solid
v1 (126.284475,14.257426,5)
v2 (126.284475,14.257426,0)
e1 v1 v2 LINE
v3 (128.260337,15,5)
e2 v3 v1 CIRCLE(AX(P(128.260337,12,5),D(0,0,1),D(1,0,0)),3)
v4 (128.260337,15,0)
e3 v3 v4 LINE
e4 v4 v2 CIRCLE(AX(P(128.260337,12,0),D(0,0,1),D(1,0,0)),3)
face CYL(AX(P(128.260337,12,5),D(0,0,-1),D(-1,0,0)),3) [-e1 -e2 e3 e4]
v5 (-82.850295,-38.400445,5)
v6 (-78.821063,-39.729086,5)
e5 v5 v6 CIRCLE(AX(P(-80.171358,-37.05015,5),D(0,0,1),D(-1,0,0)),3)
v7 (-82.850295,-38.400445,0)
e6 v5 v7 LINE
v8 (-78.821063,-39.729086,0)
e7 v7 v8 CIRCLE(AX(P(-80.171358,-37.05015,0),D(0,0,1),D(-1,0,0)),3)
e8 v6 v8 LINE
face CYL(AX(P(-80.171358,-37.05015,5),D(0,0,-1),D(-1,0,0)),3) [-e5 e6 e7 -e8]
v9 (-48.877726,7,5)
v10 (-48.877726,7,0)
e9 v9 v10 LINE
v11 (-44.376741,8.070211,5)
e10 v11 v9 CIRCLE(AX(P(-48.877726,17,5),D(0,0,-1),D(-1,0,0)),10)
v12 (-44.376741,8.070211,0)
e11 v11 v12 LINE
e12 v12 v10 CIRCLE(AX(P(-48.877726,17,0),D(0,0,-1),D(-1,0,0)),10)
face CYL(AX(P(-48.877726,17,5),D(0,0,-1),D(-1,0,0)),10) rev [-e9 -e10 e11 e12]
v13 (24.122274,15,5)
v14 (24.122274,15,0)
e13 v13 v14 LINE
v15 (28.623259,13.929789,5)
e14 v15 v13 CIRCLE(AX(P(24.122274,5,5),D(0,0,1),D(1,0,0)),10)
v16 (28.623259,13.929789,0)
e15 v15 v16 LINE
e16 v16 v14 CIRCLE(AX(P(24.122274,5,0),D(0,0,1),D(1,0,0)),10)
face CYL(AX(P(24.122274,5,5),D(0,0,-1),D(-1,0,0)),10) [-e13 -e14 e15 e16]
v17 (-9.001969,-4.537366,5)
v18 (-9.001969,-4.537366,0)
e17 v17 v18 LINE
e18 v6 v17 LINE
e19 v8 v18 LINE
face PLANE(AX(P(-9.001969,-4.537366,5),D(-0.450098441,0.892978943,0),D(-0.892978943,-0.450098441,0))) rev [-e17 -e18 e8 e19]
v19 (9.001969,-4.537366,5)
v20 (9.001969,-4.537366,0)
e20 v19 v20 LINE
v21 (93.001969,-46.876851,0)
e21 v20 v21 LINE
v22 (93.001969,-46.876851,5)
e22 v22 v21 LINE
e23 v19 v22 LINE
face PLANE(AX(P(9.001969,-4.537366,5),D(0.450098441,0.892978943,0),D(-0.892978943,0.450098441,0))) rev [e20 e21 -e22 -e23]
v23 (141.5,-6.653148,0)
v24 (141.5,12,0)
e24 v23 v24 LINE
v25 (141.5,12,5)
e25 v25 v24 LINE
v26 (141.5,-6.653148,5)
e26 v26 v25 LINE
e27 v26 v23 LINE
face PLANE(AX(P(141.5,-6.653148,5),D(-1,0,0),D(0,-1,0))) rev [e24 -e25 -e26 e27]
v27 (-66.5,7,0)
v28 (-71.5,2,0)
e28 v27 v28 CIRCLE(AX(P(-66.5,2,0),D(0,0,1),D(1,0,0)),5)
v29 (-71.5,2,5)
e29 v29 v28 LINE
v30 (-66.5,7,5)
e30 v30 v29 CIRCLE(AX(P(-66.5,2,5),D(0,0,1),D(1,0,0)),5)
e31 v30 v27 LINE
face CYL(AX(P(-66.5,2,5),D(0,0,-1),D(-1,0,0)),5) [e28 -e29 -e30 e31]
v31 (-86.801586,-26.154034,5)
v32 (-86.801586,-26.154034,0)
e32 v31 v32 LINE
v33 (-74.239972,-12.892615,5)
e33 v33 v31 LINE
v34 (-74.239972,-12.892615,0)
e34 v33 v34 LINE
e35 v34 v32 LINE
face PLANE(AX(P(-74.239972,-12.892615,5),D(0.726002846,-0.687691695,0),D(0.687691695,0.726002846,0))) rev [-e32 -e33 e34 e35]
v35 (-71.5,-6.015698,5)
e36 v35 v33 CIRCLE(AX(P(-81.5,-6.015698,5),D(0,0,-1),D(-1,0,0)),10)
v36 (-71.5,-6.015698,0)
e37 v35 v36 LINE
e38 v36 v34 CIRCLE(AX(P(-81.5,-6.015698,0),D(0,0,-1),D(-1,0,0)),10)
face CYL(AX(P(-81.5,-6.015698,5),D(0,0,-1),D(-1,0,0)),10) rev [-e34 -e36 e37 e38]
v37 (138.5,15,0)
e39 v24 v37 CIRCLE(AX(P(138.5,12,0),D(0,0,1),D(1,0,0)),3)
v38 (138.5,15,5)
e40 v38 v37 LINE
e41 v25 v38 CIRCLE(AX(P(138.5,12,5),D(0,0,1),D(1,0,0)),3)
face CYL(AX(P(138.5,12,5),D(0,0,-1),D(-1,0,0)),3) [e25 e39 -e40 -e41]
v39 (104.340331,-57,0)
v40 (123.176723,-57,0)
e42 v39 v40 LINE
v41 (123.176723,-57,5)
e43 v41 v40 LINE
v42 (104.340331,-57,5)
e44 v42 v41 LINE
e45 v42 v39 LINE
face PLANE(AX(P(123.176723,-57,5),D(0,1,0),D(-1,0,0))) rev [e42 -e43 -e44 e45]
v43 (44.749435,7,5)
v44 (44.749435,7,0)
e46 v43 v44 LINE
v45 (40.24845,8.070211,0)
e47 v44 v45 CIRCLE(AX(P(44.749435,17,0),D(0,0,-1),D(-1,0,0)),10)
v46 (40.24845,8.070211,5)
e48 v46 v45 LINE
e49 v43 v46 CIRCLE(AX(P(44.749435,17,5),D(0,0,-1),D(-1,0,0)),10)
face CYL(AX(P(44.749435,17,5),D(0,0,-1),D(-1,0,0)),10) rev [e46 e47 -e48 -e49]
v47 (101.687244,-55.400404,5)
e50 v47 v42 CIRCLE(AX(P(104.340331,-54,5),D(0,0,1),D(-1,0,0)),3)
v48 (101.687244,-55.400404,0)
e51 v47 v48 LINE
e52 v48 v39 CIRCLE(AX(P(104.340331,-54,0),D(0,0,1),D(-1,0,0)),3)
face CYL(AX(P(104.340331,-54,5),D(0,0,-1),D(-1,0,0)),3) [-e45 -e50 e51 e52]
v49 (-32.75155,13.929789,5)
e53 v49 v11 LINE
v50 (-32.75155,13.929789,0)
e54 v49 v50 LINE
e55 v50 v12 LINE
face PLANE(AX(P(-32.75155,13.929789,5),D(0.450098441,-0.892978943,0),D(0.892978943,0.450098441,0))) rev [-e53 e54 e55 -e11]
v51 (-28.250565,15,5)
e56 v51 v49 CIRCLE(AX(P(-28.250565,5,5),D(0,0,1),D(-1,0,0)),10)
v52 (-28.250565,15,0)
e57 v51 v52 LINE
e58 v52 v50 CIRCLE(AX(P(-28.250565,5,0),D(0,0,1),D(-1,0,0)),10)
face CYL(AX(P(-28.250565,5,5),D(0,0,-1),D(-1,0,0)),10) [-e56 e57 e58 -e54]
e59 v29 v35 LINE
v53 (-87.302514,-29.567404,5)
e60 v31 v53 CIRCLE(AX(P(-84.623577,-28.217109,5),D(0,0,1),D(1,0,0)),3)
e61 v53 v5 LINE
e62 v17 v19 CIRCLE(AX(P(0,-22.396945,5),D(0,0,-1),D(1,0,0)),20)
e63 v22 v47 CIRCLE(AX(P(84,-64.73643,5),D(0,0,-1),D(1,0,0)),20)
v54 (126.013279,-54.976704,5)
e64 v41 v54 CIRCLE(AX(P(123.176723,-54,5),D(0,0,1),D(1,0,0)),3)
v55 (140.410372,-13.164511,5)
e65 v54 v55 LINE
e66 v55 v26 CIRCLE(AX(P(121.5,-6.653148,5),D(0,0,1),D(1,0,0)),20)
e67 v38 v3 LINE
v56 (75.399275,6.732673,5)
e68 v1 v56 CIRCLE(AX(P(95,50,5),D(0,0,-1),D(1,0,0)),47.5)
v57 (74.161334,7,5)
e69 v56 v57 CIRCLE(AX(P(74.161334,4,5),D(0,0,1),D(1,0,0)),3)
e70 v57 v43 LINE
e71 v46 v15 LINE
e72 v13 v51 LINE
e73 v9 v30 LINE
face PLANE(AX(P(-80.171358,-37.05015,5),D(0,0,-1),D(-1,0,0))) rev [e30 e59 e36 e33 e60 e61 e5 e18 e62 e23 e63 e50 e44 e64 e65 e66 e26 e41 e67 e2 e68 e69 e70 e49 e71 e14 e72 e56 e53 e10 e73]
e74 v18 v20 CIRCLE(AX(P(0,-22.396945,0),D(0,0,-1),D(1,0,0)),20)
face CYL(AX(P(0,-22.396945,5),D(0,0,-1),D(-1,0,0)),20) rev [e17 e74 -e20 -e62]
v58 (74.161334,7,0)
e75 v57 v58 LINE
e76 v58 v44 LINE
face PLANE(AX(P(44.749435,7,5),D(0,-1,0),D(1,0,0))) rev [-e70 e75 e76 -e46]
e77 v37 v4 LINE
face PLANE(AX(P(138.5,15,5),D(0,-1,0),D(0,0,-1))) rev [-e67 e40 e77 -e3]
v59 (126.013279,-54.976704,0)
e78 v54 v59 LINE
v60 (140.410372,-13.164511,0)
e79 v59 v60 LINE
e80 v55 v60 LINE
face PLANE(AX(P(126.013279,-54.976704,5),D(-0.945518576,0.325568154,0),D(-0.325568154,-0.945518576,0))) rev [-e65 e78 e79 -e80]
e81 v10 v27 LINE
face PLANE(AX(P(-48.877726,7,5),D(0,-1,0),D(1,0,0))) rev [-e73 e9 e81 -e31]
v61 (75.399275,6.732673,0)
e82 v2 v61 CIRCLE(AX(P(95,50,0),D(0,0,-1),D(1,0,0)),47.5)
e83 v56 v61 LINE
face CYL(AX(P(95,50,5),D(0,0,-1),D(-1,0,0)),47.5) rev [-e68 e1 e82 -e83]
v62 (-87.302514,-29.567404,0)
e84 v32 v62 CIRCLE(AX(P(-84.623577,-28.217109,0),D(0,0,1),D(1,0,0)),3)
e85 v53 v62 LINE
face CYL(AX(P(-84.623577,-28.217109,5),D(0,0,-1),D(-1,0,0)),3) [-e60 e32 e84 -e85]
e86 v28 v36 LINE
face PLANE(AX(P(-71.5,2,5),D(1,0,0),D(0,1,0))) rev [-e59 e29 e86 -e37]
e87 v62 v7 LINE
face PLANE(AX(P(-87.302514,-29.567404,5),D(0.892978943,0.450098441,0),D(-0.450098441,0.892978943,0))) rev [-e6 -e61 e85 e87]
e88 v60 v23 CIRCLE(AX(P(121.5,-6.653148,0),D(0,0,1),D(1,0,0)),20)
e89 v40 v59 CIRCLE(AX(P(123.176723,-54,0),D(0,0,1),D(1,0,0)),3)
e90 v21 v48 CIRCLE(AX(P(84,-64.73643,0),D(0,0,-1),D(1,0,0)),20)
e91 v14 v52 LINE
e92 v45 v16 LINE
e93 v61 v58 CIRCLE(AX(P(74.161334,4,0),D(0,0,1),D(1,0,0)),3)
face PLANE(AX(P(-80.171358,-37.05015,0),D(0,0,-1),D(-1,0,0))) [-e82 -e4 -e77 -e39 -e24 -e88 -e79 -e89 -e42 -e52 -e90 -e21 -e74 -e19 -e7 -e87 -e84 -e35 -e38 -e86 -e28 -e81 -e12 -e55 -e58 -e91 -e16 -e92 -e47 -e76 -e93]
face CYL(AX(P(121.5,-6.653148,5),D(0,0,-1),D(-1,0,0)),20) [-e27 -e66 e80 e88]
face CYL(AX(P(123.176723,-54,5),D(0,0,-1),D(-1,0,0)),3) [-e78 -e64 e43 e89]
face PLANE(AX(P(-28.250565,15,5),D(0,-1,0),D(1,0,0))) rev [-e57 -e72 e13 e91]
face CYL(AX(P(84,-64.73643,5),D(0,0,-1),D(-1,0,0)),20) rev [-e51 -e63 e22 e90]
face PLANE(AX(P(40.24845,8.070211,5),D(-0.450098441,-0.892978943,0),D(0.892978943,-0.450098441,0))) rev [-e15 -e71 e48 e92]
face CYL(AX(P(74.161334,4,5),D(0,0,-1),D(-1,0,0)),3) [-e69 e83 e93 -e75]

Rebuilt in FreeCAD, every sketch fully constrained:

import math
import FreeCAD as App
import Part
import Sketcher
from FreeCAD import Vector
Q = App.Units.Quantity

doc = App.newDocument("Part")
body = doc.addObject("PartDesign::Body", "Body")

sketch1 = doc.addObject("Sketcher::SketchObject", "Sketch")
body.addObject(sketch1)
sketch1.AttachmentSupport = (doc.XY_Plane, [""])
sketch1.MapMode = "FlatFace"
sketch1.addGeometry([
    Part.LineSegment(Vector(9, -4.5, 0), Vector(93, -46.9, 0)),
    Part.ArcOfCircle(Part.Circle(Vector(84, -64.7, 0), Vector(0, 0, 1), 20), math.radians(28), math.radians(63)),
    Part.ArcOfCircle(Part.Circle(Vector(104.3, -54, 0), Vector(0, 0, 1), 3), math.radians(-152), math.radians(-90)),
    Part.LineSegment(Vector(104.3, -57, 0), Vector(123.2, -57, 0)),
    Part.ArcOfCircle(Part.Circle(Vector(123.2, -54, 0), Vector(0, 0, 1), 3), math.radians(-90), math.radians(-19)),
    Part.LineSegment(Vector(126, -55, 0), Vector(140.4, -13.2, 0)),
    Part.ArcOfCircle(Part.Circle(Vector(121.5, -6.7, 0), Vector(0, 0, 1), 20), math.radians(-19), math.radians(0)),
    Part.LineSegment(Vector(141.5, -6.7, 0), Vector(141.5, 12, 0)),
    Part.ArcOfCircle(Part.Circle(Vector(138.5, 12, 0), Vector(0, 0, 1), 3), math.radians(0), math.radians(90)),
    Part.LineSegment(Vector(138.5, 15, 0), Vector(128.3, 15, 0)),
    Part.ArcOfCircle(Part.Circle(Vector(128.3, 12, 0), Vector(0, 0, 1), 3), math.radians(90), math.radians(131)),
    Part.ArcOfCircle(Part.Circle(Vector(95, 50, 0), Vector(0, 0, 1), 47.5), math.radians(-114), math.radians(-49)),
    Part.ArcOfCircle(Part.Circle(Vector(74.2, 4, 0), Vector(0, 0, 1), 3), math.radians(66), math.radians(90)),
    Part.LineSegment(Vector(74.2, 7, 0), Vector(44.7, 7, 0)),
    Part.ArcOfCircle(Part.Circle(Vector(44.7, 17, 0), Vector(0, 0, 1), 10), math.radians(-117), math.radians(-90)),
    Part.LineSegment(Vector(40.2, 8.1, 0), Vector(28.6, 13.9, 0)),
    Part.ArcOfCircle(Part.Circle(Vector(24.1, 5, 0), Vector(0, 0, 1), 10), math.radians(63), math.radians(90)),
    Part.LineSegment(Vector(24.1, 15, 0), Vector(-28.3, 15, 0)),
    Part.ArcOfCircle(Part.Circle(Vector(-28.3, 5, 0), Vector(0, 0, 1), 10), math.radians(90), math.radians(117)),
    Part.LineSegment(Vector(-32.8, 13.9, 0), Vector(-44.4, 8.1, 0)),
    Part.ArcOfCircle(Part.Circle(Vector(-48.9, 17, 0), Vector(0, 0, 1), 10), math.radians(-90), math.radians(-63)),
    Part.LineSegment(Vector(-48.9, 7, 0), Vector(-66.5, 7, 0)),
    Part.ArcOfCircle(Part.Circle(Vector(-66.5, 2, 0), Vector(0, 0, 1), 5), math.radians(90), math.radians(180)),
    Part.LineSegment(Vector(-71.5, 2, 0), Vector(-71.5, -6, 0)),
    Part.ArcOfCircle(Part.Circle(Vector(-81.5, -6, 0), Vector(0, 0, 1), 10), math.radians(-43), math.radians(0)),
    Part.LineSegment(Vector(-74.2, -12.9, 0), Vector(-86.8, -26.2, 0)),
    Part.ArcOfCircle(Part.Circle(Vector(-84.6, -28.2, 0), Vector(0, 0, 1), 3), math.radians(137), math.radians(207)),
    Part.LineSegment(Vector(-87.3, -29.6, 0), Vector(-82.9, -38.4, 0)),
    Part.ArcOfCircle(Part.Circle(Vector(-80.2, -37.1, 0), Vector(0, 0, 1), 3), math.radians(-153), math.radians(-63)),
    Part.LineSegment(Vector(-78.8, -39.7, 0), Vector(-9, -4.5, 0)),
    Part.ArcOfCircle(Part.Circle(Vector(0, -22.4, 0), Vector(0, 0, 1), 20), math.radians(63), math.radians(117)),
], False)
sketch1.addConstraint([
    Sketcher.Constraint("Tangent", 0, 2, 1, 2),
    Sketcher.Constraint("Tangent", 1, 1, 2, 1),
    Sketcher.Constraint("Tangent", 2, 2, 3, 1),
    Sketcher.Constraint("Tangent", 3, 2, 4, 1),
    Sketcher.Constraint("Tangent", 4, 2, 5, 1),
    Sketcher.Constraint("Tangent", 5, 2, 6, 1),
    Sketcher.Constraint("Tangent", 6, 2, 7, 1),
    Sketcher.Constraint("Tangent", 7, 2, 8, 1),
    Sketcher.Constraint("Tangent", 8, 2, 9, 1),
    Sketcher.Constraint("Tangent", 9, 2, 10, 1),
    Sketcher.Constraint("Tangent", 10, 2, 11, 2),
    Sketcher.Constraint("Tangent", 11, 1, 12, 1),
    Sketcher.Constraint("Tangent", 12, 2, 13, 1),
    Sketcher.Constraint("Tangent", 13, 2, 14, 2),
    Sketcher.Constraint("Tangent", 14, 1, 15, 1),
    Sketcher.Constraint("Tangent", 15, 2, 16, 1),
    Sketcher.Constraint("Tangent", 16, 2, 17, 1),
    Sketcher.Constraint("Tangent", 17, 2, 18, 1),
    Sketcher.Constraint("Tangent", 18, 2, 19, 1),
    Sketcher.Constraint("Tangent", 19, 2, 20, 2),
    Sketcher.Constraint("Tangent", 20, 1, 21, 1),
    Sketcher.Constraint("Tangent", 21, 2, 22, 1),
    Sketcher.Constraint("Tangent", 22, 2, 23, 1),
    Sketcher.Constraint("Tangent", 23, 2, 24, 2),
    Sketcher.Constraint("Tangent", 24, 1, 25, 1),
    Sketcher.Constraint("Tangent", 25, 2, 26, 1),
    Sketcher.Constraint("Tangent", 26, 2, 27, 1),
    Sketcher.Constraint("Tangent", 27, 2, 28, 1),
    Sketcher.Constraint("Tangent", 28, 2, 29, 1),
    Sketcher.Constraint("Tangent", 29, 2, 30, 2),
    Sketcher.Constraint("Tangent", 30, 1, 0, 1),
    Sketcher.Constraint("Horizontal", 3),
    Sketcher.Constraint("Vertical", 7),
    Sketcher.Constraint("Horizontal", 9),
    Sketcher.Constraint("Horizontal", 13),
    Sketcher.Constraint("Horizontal", 17),
    Sketcher.Constraint("Horizontal", 21),
    Sketcher.Constraint("Vertical", 23),
    Sketcher.Constraint("Equal", 2, 4),
    Sketcher.Constraint("Equal", 1, 6),
    Sketcher.Constraint("Equal", 4, 8),
    Sketcher.Constraint("Equal", 8, 10),
    Sketcher.Constraint("Equal", 10, 12),
    Sketcher.Constraint("Equal", 14, 16),
    Sketcher.Constraint("Equal", 16, 18),
    Sketcher.Constraint("Equal", 18, 20),
    Sketcher.Constraint("Equal", 20, 24),
    Sketcher.Constraint("Equal", 12, 26),
    Sketcher.Constraint("Equal", 26, 28),
    Sketcher.Constraint("Equal", 6, 30),
    Sketcher.Constraint("Symmetric", 29, 2, 30, 1, -2),
    Sketcher.Constraint("Parallel", 0, 15),
    Sketcher.Constraint("Perpendicular", 19, 27),
    Sketcher.Constraint("Perpendicular", 27, 29),
    Sketcher.Constraint("Horizontal", 14, 3, 20, 3),
    Sketcher.Constraint("Horizontal", 9, 2, 16, 2),
    Sketcher.Constraint("Radius", 1, 20.0),
    Sketcher.Constraint("Radius", 2, 3.0),
    Sketcher.Constraint("Radius", 14, 10.0),
    Sketcher.Constraint("Radius", 22, 5.0),
    Sketcher.Constraint("Radius", 11, 47.5),
    Sketcher.Constraint("Angle", 5, Q("71 deg")),
    Sketcher.Constraint("DistanceX", -1, 1, 1, 3, 84.0),
    Sketcher.Constraint("DistanceY", 2, 3, -1, 1, 54.0),
    Sketcher.Constraint("DistanceY", -1, 1, 8, 3, 12.0),
    Sketcher.Constraint("DistanceX", -1, 1, 11, 3, 95.0),
    Sketcher.Constraint("DistanceY", -1, 1, 11, 3, 50.0),
    Sketcher.Constraint("DistanceY", -1, 1, 12, 3, 4.0),
    Sketcher.Constraint("DistanceX", 18, 3, 14, 3, 73.0),
    Sketcher.Constraint("DistanceX", -1, 1, 6, 3, 121.5),
    Sketcher.Constraint("DistanceX", 22, 3, -1, 1, 66.5),
    Sketcher.Constraint("Angle", 0, Q("-26.75 deg")),
    Sketcher.Constraint("DistanceX", 13, 2, 13, 1, 29.411899),
    Sketcher.Constraint("DistanceX", 3, 1, 3, 2, 18.836392),
    Sketcher.Constraint("Distance", 5, 44.221441),
    Sketcher.Constraint("Distance", 29, 78.18672),
    Sketcher.Constraint("DistanceY", 23, 2, 23, 1, 8.015698),
    Sketcher.Constraint("DistanceY", 26, 3, -1, 1, 28.217109),
])
pad1 = doc.addObject("PartDesign::Pad", "Pad")
body.addObject(pad1)
pad1.Profile = sketch1
pad1.Length = 5

doc.recompute()
